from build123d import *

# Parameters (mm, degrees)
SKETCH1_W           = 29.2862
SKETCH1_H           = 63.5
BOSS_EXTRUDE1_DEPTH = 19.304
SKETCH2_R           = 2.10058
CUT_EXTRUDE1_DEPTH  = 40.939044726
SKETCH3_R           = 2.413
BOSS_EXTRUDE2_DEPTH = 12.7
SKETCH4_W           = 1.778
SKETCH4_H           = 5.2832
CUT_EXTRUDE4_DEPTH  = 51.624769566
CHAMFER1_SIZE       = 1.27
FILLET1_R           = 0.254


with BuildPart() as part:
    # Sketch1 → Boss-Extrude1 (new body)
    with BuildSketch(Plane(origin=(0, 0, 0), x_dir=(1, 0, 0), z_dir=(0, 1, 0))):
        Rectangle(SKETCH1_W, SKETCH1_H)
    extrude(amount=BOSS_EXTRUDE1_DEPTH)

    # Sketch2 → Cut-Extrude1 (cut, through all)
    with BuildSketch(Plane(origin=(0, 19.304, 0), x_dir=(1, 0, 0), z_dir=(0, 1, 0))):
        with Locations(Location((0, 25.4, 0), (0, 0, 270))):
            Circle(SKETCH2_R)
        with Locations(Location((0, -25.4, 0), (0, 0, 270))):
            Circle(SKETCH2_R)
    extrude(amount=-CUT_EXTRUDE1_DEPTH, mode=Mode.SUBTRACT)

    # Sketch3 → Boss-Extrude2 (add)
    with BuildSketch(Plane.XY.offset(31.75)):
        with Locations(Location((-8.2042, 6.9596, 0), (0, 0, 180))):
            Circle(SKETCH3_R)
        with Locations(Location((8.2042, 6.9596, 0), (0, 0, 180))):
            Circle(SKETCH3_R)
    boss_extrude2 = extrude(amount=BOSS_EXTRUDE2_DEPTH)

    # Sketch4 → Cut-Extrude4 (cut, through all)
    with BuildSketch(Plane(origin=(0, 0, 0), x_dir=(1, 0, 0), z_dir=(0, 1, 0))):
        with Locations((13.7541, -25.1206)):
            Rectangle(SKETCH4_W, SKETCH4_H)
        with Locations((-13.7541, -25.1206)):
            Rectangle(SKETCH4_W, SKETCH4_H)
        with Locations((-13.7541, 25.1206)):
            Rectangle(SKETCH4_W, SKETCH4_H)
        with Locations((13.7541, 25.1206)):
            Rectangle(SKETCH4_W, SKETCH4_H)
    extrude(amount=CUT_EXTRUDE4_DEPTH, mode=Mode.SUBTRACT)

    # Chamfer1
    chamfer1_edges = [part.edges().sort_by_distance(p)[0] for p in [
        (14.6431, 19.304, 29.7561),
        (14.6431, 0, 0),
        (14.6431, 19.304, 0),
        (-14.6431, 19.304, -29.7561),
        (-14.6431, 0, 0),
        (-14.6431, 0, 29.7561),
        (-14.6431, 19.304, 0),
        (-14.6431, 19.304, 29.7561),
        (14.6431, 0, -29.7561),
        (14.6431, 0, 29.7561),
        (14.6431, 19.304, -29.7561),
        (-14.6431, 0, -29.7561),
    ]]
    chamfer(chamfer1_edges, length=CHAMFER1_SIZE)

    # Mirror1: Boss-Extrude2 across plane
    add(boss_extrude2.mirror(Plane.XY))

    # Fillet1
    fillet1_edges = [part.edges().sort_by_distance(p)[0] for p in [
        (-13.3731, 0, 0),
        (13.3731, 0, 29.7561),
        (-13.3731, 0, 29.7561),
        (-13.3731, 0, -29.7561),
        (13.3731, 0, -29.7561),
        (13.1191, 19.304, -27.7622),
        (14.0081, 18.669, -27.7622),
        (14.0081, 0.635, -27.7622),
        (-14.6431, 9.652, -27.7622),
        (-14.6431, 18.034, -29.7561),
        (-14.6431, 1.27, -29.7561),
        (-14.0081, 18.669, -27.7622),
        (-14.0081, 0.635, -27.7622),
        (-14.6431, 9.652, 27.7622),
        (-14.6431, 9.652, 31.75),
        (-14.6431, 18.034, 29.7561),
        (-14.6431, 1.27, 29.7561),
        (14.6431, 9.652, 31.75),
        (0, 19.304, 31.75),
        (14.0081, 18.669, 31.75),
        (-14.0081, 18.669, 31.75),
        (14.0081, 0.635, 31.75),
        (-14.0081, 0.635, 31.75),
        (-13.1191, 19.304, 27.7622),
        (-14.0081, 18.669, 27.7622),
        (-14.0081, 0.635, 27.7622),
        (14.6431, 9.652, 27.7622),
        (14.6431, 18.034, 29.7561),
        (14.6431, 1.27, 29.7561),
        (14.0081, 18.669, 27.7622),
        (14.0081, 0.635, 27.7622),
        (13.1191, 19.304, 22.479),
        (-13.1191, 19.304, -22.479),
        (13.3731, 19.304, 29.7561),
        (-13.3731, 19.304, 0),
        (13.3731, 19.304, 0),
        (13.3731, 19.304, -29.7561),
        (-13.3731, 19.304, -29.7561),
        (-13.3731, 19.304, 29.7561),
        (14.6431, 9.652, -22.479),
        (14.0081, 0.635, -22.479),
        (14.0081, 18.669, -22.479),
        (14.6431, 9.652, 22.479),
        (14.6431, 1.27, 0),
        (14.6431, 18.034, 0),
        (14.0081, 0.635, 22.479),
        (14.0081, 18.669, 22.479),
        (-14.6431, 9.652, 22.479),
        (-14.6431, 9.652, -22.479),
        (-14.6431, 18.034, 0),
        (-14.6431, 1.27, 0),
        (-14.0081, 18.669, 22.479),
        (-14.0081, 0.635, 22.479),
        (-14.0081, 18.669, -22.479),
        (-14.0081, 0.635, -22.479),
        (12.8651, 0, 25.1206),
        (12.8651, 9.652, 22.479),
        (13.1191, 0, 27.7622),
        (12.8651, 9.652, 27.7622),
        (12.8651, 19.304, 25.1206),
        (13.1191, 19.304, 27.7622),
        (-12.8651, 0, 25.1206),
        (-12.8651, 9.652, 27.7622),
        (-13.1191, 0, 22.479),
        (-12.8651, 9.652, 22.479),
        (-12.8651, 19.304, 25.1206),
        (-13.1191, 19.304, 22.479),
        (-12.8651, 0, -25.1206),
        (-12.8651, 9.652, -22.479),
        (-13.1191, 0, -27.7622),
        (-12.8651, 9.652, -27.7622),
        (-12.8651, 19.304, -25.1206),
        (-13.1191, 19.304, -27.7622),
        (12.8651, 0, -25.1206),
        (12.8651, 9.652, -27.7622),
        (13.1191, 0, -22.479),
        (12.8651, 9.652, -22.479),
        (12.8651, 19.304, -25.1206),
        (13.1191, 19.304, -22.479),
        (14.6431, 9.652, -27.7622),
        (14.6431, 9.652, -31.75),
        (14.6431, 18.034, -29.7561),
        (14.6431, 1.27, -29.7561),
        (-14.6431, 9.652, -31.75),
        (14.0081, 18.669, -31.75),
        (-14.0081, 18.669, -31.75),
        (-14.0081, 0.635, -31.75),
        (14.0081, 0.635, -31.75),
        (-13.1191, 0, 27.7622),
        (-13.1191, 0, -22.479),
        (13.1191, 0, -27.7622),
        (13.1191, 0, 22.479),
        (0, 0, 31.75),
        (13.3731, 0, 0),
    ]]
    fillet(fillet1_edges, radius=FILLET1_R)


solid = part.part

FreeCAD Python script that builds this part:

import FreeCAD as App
import Part
import Sketcher

V = App.Vector
Q = App.Units.Quantity


def edges_at(feature, points):
    """Names of the edges that pass closest to the given points."""
    edges = feature.Shape.Edges
    near = lambda p: min(range(len(edges)), key=lambda i: edges[i].distToShape(Part.Vertex(*p))[0])
    return sorted({f"Edge{near(p) + 1}" for p in points})


def add_polygon(sketch, points):
    """Adds a closed chain of lines whose ends are joined by coincident constraints."""
    first, n = sketch.GeometryCount, len(points)
    for a, b in zip(points, points[1:] + points[:1]):
        sketch.addGeometry(Part.LineSegment(App.Vector(*a, 0), App.Vector(*b, 0)), False)
    for i in range(n):
        sketch.addConstraint(Sketcher.Constraint("Coincident", first + i, 2, first + (i + 1) % n, 1))

doc = App.newDocument("Part")
body = doc.addObject("PartDesign::Body", "Body")

# Sketch on XZ plane
sketch1 = doc.addObject("Sketcher::SketchObject", "Sketch")
body.addObject(sketch1)
sketch1.AttachmentSupport = (doc.XZ_Plane, [""])
sketch1.MapMode = "FlatFace"
add_polygon(sketch1, [(-14.6431, -31.75), (-14.6431, 31.75), (14.6431, 31.75), (14.6431, -31.75)])  # lines 0-3
sketch1.addConstraint([
    Sketcher.Constraint("Vertical", 0),
    Sketcher.Constraint("Horizontal", 1),
    Sketcher.Constraint("Vertical", 2),
    Sketcher.Constraint("Horizontal", 3),
    Sketcher.Constraint("Symmetric", 0, 2, 2, 2, -1, 1),
    Sketcher.Constraint("DistanceY", 0, 1, 0, 2, Q("2.5 in")),
    Sketcher.Constraint("DistanceX", 1, 1, 1, 2, Q("1.153 in")),
])
pad1 = doc.addObject("PartDesign::Pad", "Pad")
body.addObject(pad1)
pad1.Profile = sketch1
pad1.Length = Q("0.76 in")
pad1.Reversed = True

# Sketch on XZ plane
sketch2 = doc.addObject("Sketcher::SketchObject", "Sketch001")
body.addObject(sketch2)
sketch2.AttachmentSupport = (doc.XZ_Plane, [""])
sketch2.MapMode = "FlatFace"
sketch2.AttachmentOffset = App.Placement(V(0, 0, -0.76 * 25.4), App.Rotation())
sketch2.addGeometry([
    Part.Circle(V(0, -25.4, 0), V(0, 0, 1), 2.10058),
    Part.Circle(V(0, 25.4, 0), V(0, 0, 1), 2.10058),
], False)
sketch2.addConstraint([
    Sketcher.Constraint("Equal", 0, 1),
    Sketcher.Constraint("Symmetric", 0, 3, 1, 3, -1, 1),
    Sketcher.Constraint("PointOnObject", 0, 3, -2),
    Sketcher.Constraint("DistanceY", 0, 3, -1, 1, Q("1 in")),
    Sketcher.Constraint("Diameter", 0, Q("0.1654 in")),
])
pocket1 = doc.addObject("PartDesign::Pocket", "Pocket")
body.addObject(pocket1)
pocket1.Profile = sketch2
pocket1.Type = "ThroughAll"
pocket1.Reversed = True

# Sketch on XY plane
sketch3 = doc.addObject("Sketcher::SketchObject", "Sketch002")
body.addObject(sketch3)
sketch3.AttachmentSupport = (doc.XY_Plane, [""])
sketch3.MapMode = "FlatFace"
sketch3.AttachmentOffset = App.Placement(V(0, 0, 1.25 * 25.4), App.Rotation())
sketch3.addGeometry([
    Part.Circle(V(-8.2042, 6.9596, 0), V(0, 0, 1), 2.413),
    Part.Circle(V(8.2042, 6.9596, 0), V(0, 0, 1), 2.413),
], False)
sketch3.addConstraint([
    Sketcher.Constraint("Equal", 0, 1),
    Sketcher.Constraint("Symmetric", 0, 3, 1, 3, -2),
    Sketcher.Constraint("Diameter", 0, Q("0.19 in")),
    Sketcher.Constraint("DistanceX", 0, 3, -1, 1, Q("0.323 in")),
    Sketcher.Constraint("DistanceY", -1, 1, 0, 3, Q("0.274 in")),
])
pad2 = doc.addObject("PartDesign::Pad", "Pad001")
body.addObject(pad2)
pad2.Profile = sketch3
pad2.Length = Q("0.5 in")

# Sketch on XZ plane
sketch4 = doc.addObject("Sketcher::SketchObject", "Sketch003")
body.addObject(sketch4)
sketch4.AttachmentSupport = (doc.XZ_Plane, [""])
sketch4.MapMode = "FlatFace"
add_polygon(sketch4, [(12.8651, 22.479), (12.8651, 27.7622), (14.6431, 27.7622), (14.6431, 22.479)])  # lines 0-3
add_polygon(sketch4, [(-14.6431, 22.479), (-14.6431, 27.7622), (-12.8651, 27.7622), (-12.8651, 22.479)])  # lines 4-7
add_polygon(sketch4, [(-14.6431, -27.7622), (-14.6431, -22.479), (-12.8651, -22.479), (-12.8651, -27.7622)])  # lines 8-11
add_polygon(sketch4, [(12.8651, -27.7622), (12.8651, -22.479), (14.6431, -22.479), (14.6431, -27.7622)])  # lines 12-15
sketch4.addConstraint([
    Sketcher.Constraint("Vertical", 0),
    Sketcher.Constraint("Horizontal", 1),
    Sketcher.Constraint("Vertical", 2),
    Sketcher.Constraint("Horizontal", 3),
    Sketcher.Constraint("Vertical", 4),
    Sketcher.Constraint("Horizontal", 5),
    Sketcher.Constraint("Vertical", 6),
    Sketcher.Constraint("Horizontal", 7),
    Sketcher.Constraint("Vertical", 8),
    Sketcher.Constraint("Horizontal", 9),
    Sketcher.Constraint("Vertical", 10),
    Sketcher.Constraint("Horizontal", 11),
    Sketcher.Constraint("Vertical", 12),
    Sketcher.Constraint("Horizontal", 13),
    Sketcher.Constraint("Vertical", 14),
    Sketcher.Constraint("Horizontal", 15),
    Sketcher.Constraint("Symmetric", 2, 2, 8, 2, -1, 1),
    Sketcher.Constraint("Symmetric", 0, 2, 10, 2, -1, 1),
    Sketcher.Constraint("Symmetric", 6, 2, 12, 2, -1, 1),
    Sketcher.Constraint("Symmetric", 4, 2, 14, 2, -1, 1),
    Sketcher.Constraint("Symmetric", 1, 2, 4, 2, -2),
    Sketcher.Constraint("Symmetric", 3, 2, 6, 2, -2),
    Sketcher.Constraint("DistanceX", 1, 1, 1, 2, Q("0.07 in")),
    Sketcher.Constraint("DistanceY", 0, 1, 0, 2, Q("0.208 in")),
    Sketcher.Constraint("DistanceY", 8, 2, 7, 2, Q("1.77 in")),
    Sketcher.Constraint("DistanceX", 4, 2, 0, 2, Q("1.083 in")),
])
pocket2 = doc.addObject("PartDesign::Pocket", "Pocket001")
body.addObject(pocket2)
pocket2.Profile = sketch4
pocket2.Type = "ThroughAll"
doc.recompute()

chamfer = doc.addObject("PartDesign::Chamfer", "Chamfer")
body.addObject(chamfer)
chamfer.Base = (pocket2, edges_at(pocket2, [
    (14.643, 19.304, 29.756),
    (14.643, 0, 0),
    (14.643, 19.304, 0),
    (-14.643, 19.304, -29.756),
    (-14.643, 0, 0),
    (-14.643, 0, 29.756),
    (-14.643, 19.304, 0),
    (-14.643, 19.304, 29.756),
    (14.643, 0, -29.756),
    (14.643, 0, 29.756),
    (14.643, 19.304, -29.756),
    (-14.643, 0, -29.756),
]))
chamfer.Size = Q("0.05 in")
doc.recompute()

mirrored = doc.addObject("PartDesign::Mirrored", "Mirrored")
body.addObject(mirrored)
mirrored.Originals = [pad2]
mirrored.MirrorPlane = (doc.XY_Plane, [""])
body.Tip = mirrored
doc.recompute()

fillet = doc.addObject("PartDesign::Fillet", "Fillet")
body.addObject(fillet)
fillet.Base = (mirrored, edges_at(mirrored, [
    (-13.373, 0, 0),
    (13.373, 0, 29.756),
    (-13.373, 0, 29.756),
    (-13.373, 0, -29.756),
    (13.373, 0, -29.756),
    (13.119, 19.304, -27.762),
    (14.008, 18.669, -27.762),
    (14.008, 0.635, -27.762),
    (-14.643, 9.652, -27.762),
    (-14.643, 18.034, -29.756),
    (-14.643, 1.27, -29.756),
    (-14.008, 18.669, -27.762),
    (-14.008, 0.635, -27.762),
    (-14.643, 9.652, 27.762),
    (-14.643, 9.652, 31.75),
    (-14.643, 18.034, 29.756),
    (-14.643, 1.27, 29.756),
    (14.643, 9.652, 31.75),
    (0, 19.304, 31.75),
    (14.008, 18.669, 31.75),
    (-14.008, 18.669, 31.75),
    (14.008, 0.635, 31.75),
    (-14.008, 0.635, 31.75),
    (-13.119, 19.304, 27.762),
    (-14.008, 18.669, 27.762),
    (-14.008, 0.635, 27.762),
    (14.643, 9.652, 27.762),
    (14.643, 18.034, 29.756),
    (14.643, 1.27, 29.756),
    (14.008, 18.669, 27.762),
    (14.008, 0.635, 27.762),
    (13.119, 19.304, 22.479),
    (-13.119, 19.304, -22.479),
    (13.373, 19.304, 29.756),
    (-13.373, 19.304, 0),
    (13.373, 19.304, 0),
    (13.373, 19.304, -29.756),
    (-13.373, 19.304, -29.756),
    (-13.373, 19.304, 29.756),
    (14.643, 9.652, -22.479),
    (14.008, 0.635, -22.479),
    (14.008, 18.669, -22.479),
    (14.643, 9.652, 22.479),
    (14.643, 1.27, 0),
    (14.643, 18.034, 0),
    (14.008, 0.635, 22.479),
    (14.008, 18.669, 22.479),
    (-14.643, 9.652, 22.479),
    (-14.643, 9.652, -22.479),
    (-14.643, 18.034, 0),
    (-14.643, 1.27, 0),
    (-14.008, 18.669, 22.479),
    (-14.008, 0.635, 22.479),
    (-14.008, 18.669, -22.479),
    (-14.008, 0.635, -22.479),
    (12.865, 0, 25.121),
    (12.865, 9.652, 22.479),
    (13.119, 0, 27.762),
    (12.865, 9.652, 27.762),
    (12.865, 19.304, 25.121),
    (13.119, 19.304, 27.762),
    (-12.865, 0, 25.121),
    (-12.865, 9.652, 27.762),
    (-13.119, 0, 22.479),
    (-12.865, 9.652, 22.479),
    (-12.865, 19.304, 25.121),
    (-13.119, 19.304, 22.479),
    (-12.865, 0, -25.121),
    (-12.865, 9.652, -22.479),
    (-13.119, 0, -27.762),
    (-12.865, 9.652, -27.762),
    (-12.865, 19.304, -25.121),
    (-13.119, 19.304, -27.762),
    (12.865, 0, -25.121),
    (12.865, 9.652, -27.762),
    (13.119, 0, -22.479),
    (12.865, 9.652, -22.479),
    (12.865, 19.304, -25.121),
    (13.119, 19.304, -22.479),
    (14.643, 9.652, -27.762),
    (14.643, 9.652, -31.75),
    (14.643, 18.034, -29.756),
    (14.643, 1.27, -29.756),
    (-14.643, 9.652, -31.75),
    (14.008, 18.669, -31.75),
    (-14.008, 18.669, -31.75),
    (-14.008, 0.635, -31.75),
    (14.008, 0.635, -31.75),
    (-13.119, 0, 27.762),
    (-13.119, 0, -22.479),
    (13.119, 0, -27.762),
    (13.119, 0, 22.479),
    (0, 0, 31.75),
    (13.373, 0, 0),
]))
fillet.Radius = Q("0.01 in")

doc.recompute()
